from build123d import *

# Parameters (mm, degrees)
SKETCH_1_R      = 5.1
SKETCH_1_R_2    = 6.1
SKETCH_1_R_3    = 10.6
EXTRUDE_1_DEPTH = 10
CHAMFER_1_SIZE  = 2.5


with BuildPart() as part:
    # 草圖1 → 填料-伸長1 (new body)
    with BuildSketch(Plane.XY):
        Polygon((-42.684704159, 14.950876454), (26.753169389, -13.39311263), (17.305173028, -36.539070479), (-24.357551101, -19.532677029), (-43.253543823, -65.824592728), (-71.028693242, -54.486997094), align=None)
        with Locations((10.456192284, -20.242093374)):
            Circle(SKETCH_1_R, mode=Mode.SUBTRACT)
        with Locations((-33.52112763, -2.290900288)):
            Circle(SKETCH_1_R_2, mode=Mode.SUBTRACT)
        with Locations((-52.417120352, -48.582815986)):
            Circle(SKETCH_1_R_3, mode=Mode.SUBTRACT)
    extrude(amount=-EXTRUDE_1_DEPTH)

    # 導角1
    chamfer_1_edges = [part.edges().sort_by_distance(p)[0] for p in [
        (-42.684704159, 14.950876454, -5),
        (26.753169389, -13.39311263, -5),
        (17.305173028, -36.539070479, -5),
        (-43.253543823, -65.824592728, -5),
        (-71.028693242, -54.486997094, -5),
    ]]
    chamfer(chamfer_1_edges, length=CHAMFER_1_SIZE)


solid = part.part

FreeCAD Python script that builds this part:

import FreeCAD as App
import Part
import Sketcher
from FreeCAD import Vector


def edges_at(feature, points):
    """Names of the edges that pass closest to the given points."""
    edges = feature.Shape.Edges
    near = lambda p: min(range(len(edges)), key=lambda i: edges[i].distToShape(Part.Vertex(*p))[0])
    return sorted({f"Edge{near(p) + 1}" for p in points})

doc = App.newDocument("Part")
params = doc.addObject("Spreadsheet::Sheet", "Params")
for row, (alias, value) in enumerate([
    ("sketch1_diameter", "21.2 mm"),
    ("sketch1_diameter2", "10.2 mm"),
    ("sketch1_diameter3", "12.2 mm"),
    ("sketch1_length", "75 mm"),
    ("sketch1_length2", "30 mm"),
    ("pad1_length", "10 mm"),
    ("chamfer_size", "2.5 mm"),
], start=1):
    params.set(f"A{row}", alias)
    params.set(f"B{row}", "=" + value)
    params.setAlias(f"B{row}", alias)

body = doc.addObject("PartDesign::Body", "Body")

# Sketch on XY plane
sketch1 = body.newObject("Sketcher::SketchObject", "Sketch")
sketch1.AttachmentSupport = (doc.getObject("XY_Plane"), [""])
sketch1.MapMode = "FlatFace"
sketch1.addGeometry([
    Part.LineSegment(Vector(27, -13, 0), Vector(-43, 15, 0)),  # 0
    Part.LineSegment(Vector(-43, 15, 0), Vector(-71, -54, 0)),  # 1
    Part.LineSegment(Vector(-71, -54, 0), Vector(-43, -66, 0)),  # 2
    Part.LineSegment(Vector(-43, -66, 0), Vector(-24, -20, 0)),  # 3
    Part.LineSegment(Vector(-24, -20, 0), Vector(17, -37, 0)),  # 4
    Part.LineSegment(Vector(17, -37, 0), Vector(27, -13, 0)),  # 5
    Part.Circle(Vector(-52, -49, 0), Vector(0, 0, 1), 11),  # 6
    Part.Circle(Vector(10, -20, 0), Vector(0, 0, 1), 5),  # 7
    Part.Circle(Vector(-34, -2, 0), Vector(0, 0, 1), 6),  # 8
], False)
sketch1.addConstraint([
    Sketcher.Constraint("Coincident", 0, 2, 1, 1),
    Sketcher.Constraint("Coincident", 1, 2, 2, 1),
    Sketcher.Constraint("Coincident", 2, 2, 3, 1),
    Sketcher.Constraint("Coincident", 3, 2, 4, 1),
    Sketcher.Constraint("Coincident", 4, 2, 5, 1),
    Sketcher.Constraint("Coincident", 5, 2, 0, 1),
    Sketcher.Constraint("Perpendicular", 0, 1),
    Sketcher.Constraint("Perpendicular", 1, 2),
    Sketcher.Constraint("Perpendicular", 2, 3),
    Sketcher.Constraint("Perpendicular", 3, 4),
    Sketcher.Constraint("Perpendicular", 4, 5),
    Sketcher.Constraint("Equal", 0, 1),
    Sketcher.Constraint("Diameter", 6, 21.2),
    Sketcher.Constraint("Diameter", 7, 10.2),
    Sketcher.Constraint("Diameter", 8, 12.2),
    Sketcher.Constraint("Distance", 0, 75.0),
    Sketcher.Constraint("Distance", 2, 30.0),
    Sketcher.Constraint("Distance", 3, 50.0),
    Sketcher.Constraint("DistanceY", 8, 3, -1, 1, 2.2909),
    Sketcher.Constraint("DistanceY", 2, 2, 7, 3, 45.582499),
    Sketcher.Constraint("DistanceX", 8, 3, 4, 2, 50.826301),
    Sketcher.Constraint("DistanceX", 6, 3, -1, 1, 52.41712),
    Sketcher.Constraint("DistanceX", 3, 2, -1, 1, 24.357551),
    Sketcher.Constraint("DistanceY", 4, 2, -1, 1, 36.53907),
    Sketcher.Constraint("DistanceX", -1, 1, 5, 2, 26.753169),
    Sketcher.Constraint("DistanceX", 8, 3, 7, 3, 43.97732),
    Sketcher.Constraint("DistanceY", 1, 2, 6, 3, 5.904181),
])
sketch1.setExpression("Constraints[12]", "Params.sketch1_diameter")
sketch1.setExpression("Constraints[13]", "Params.sketch1_diameter2")
sketch1.setExpression("Constraints[14]", "Params.sketch1_diameter3")
sketch1.setExpression("Constraints[15]", "Params.sketch1_length")
sketch1.setExpression("Constraints[16]", "Params.sketch1_length2")
pad1 = body.newObject("PartDesign::Pad", "Pad")
pad1.Profile = sketch1
pad1.setExpression("Length", "Params.pad1_length")
pad1.Reversed = True
doc.recompute()

chamfer = body.newObject("PartDesign::Chamfer", "Chamfer")
chamfer.Base = (pad1, edges_at(pad1, [
    (-42.685, 14.951, -5),
    (26.753, -13.393, -5),
    (17.305, -36.539, -5),
    (-43.254, -65.825, -5),
    (-71.029, -54.487, -5),
]))
chamfer.setExpression("Size", "Params.chamfer_size")

doc.recompute()
